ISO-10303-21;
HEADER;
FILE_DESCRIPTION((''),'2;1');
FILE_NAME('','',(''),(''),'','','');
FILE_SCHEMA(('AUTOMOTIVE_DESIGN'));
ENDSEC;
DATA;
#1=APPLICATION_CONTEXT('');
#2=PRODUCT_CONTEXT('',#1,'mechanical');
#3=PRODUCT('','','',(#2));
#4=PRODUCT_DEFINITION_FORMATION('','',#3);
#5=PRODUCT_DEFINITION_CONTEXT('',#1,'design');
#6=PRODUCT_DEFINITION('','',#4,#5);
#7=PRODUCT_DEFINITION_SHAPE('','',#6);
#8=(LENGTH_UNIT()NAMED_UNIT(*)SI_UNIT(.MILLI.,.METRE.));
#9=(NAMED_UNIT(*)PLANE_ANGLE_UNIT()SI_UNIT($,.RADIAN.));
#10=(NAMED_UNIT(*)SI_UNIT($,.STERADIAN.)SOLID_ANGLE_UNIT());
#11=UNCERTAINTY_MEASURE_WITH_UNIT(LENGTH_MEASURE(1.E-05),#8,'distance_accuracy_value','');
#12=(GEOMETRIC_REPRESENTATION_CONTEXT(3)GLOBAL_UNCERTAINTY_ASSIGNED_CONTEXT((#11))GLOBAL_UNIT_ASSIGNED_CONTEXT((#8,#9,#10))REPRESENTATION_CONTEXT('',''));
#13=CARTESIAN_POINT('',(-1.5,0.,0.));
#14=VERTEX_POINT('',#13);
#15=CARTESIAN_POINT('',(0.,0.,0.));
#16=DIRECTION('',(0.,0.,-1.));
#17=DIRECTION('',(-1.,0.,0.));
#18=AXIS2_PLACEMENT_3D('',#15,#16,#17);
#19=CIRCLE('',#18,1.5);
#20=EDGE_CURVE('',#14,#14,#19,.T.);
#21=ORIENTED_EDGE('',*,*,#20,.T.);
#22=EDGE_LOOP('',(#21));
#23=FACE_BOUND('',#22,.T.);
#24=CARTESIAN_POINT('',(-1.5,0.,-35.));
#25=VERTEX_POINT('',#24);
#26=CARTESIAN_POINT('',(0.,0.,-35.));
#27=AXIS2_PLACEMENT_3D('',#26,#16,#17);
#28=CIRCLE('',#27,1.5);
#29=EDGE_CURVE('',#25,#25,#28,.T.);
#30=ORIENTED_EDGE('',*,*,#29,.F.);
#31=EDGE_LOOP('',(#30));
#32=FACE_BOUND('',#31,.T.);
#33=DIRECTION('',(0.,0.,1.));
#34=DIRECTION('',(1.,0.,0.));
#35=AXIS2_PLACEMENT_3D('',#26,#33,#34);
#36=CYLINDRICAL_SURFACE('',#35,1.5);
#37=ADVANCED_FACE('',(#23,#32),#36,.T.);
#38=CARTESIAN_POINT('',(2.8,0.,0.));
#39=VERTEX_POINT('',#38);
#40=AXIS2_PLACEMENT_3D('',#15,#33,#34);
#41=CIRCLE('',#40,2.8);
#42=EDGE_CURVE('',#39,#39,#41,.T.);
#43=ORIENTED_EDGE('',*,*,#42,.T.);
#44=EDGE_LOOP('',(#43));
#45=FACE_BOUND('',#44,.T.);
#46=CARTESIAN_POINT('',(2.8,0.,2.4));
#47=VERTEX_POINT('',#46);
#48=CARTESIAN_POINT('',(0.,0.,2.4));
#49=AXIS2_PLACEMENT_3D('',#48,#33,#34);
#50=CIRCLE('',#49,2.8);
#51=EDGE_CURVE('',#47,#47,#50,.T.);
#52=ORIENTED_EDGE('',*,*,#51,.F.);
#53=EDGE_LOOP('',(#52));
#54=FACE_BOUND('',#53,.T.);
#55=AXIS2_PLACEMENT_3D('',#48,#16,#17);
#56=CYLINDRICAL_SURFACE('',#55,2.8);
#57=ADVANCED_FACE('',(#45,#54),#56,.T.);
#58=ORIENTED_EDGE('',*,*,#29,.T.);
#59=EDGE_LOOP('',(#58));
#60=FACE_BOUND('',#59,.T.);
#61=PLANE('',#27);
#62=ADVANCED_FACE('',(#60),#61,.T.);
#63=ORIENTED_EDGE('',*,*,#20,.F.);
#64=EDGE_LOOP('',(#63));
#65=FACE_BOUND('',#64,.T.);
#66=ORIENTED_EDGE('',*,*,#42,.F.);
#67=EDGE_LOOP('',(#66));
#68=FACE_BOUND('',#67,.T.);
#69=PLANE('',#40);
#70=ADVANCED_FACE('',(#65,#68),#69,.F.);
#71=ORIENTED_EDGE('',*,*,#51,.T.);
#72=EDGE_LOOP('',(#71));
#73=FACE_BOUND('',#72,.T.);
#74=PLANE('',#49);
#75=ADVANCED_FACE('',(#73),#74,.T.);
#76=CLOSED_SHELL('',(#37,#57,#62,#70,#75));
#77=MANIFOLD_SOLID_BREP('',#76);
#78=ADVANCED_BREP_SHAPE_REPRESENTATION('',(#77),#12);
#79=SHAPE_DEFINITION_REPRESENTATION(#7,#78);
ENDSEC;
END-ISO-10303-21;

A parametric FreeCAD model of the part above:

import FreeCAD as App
import Part
import Sketcher
from FreeCAD import Vector

doc = App.newDocument("Part")
body = doc.addObject("PartDesign::Body", "Body")

# Sketch on XY plane
sketch1 = body.newObject("Sketcher::SketchObject", "Sketch")
sketch1.AttachmentSupport = (doc.getObject("XY_Plane"), [""])
sketch1.MapMode = "FlatFace"
sketch1.addGeometry(Part.Circle(Vector(0, 0, 0), Vector(0, 0, 1), 2.8), False)
sketch1.addConstraint(Sketcher.Constraint("Coincident", 0, 3, -1, 1))
sketch1.addConstraint(Sketcher.Constraint("Diameter", 0, 5.6))
pad1 = body.newObject("PartDesign::Pad", "Pad")
pad1.Profile = sketch1
pad1.Length = 2.4

# Sketch on XY plane
sketch2 = body.newObject("Sketcher::SketchObject", "Sketch001")
sketch2.AttachmentSupport = (doc.getObject("XY_Plane"), [""])
sketch2.MapMode = "FlatFace"
sketch2.addGeometry(Part.Circle(Vector(0, 0, 0), Vector(0, 0, 1), 1.5), False)
sketch2.addConstraint(Sketcher.Constraint("Coincident", 0, 3, -1, 1))
sketch2.addConstraint(Sketcher.Constraint("Diameter", 0, 3.0))
pad2 = body.newObject("PartDesign::Pad", "Pad001")
pad2.Profile = sketch2
pad2.Length = 35
pad2.Reversed = True

doc.recompute()
